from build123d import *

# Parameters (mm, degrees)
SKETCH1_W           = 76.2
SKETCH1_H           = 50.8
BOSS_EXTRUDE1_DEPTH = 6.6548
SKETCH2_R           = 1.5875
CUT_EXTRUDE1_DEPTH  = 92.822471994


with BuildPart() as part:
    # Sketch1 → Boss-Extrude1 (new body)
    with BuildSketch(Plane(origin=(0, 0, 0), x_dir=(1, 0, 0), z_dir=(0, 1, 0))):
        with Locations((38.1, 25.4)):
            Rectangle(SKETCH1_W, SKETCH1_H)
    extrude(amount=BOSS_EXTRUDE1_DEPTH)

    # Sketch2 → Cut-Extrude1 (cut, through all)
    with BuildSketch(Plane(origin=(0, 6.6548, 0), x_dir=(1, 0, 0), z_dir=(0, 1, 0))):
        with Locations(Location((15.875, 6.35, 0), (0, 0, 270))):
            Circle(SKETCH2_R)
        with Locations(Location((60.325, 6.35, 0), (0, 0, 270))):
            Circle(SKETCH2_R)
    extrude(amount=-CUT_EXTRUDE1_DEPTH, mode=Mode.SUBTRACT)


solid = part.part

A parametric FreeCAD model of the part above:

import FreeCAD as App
import Part
import Sketcher
Q = App.Units.Quantity

doc = App.newDocument("Part")
body = doc.addObject("PartDesign::Body", "Body")

# Sketch on XZ plane
sketch1 = doc.addObject("Sketcher::SketchObject", "Sketch")
body.addObject(sketch1)
sketch1.AttachmentSupport = (doc.XZ_Plane, [""])
sketch1.MapMode = "FlatFace"
sketch1.addGeometry([
    Part.LineSegment(App.Vector(0, -50.8, 0), App.Vector(0, 0, 0)),
    Part.LineSegment(App.Vector(0, 0, 0), App.Vector(76.2, 0, 0)),
    Part.LineSegment(App.Vector(76.2, 0, 0), App.Vector(76.2, -50.8, 0)),
    Part.LineSegment(App.Vector(76.2, -50.8, 0), App.Vector(0, -50.8, 0)),
], False)
sketch1.addConstraint([
    Sketcher.Constraint("Coincident", 0, 2, 1, 1),
    Sketcher.Constraint("Coincident", 1, 2, 2, 1),
    Sketcher.Constraint("Coincident", 2, 2, 3, 1),
    Sketcher.Constraint("Coincident", 3, 2, 0, 1),
    Sketcher.Constraint("Vertical", 0),
    Sketcher.Constraint("Horizontal", 1),
    Sketcher.Constraint("Vertical", 2),
    Sketcher.Constraint("Horizontal", 3),
    Sketcher.Constraint("Coincident", 0, 2, -1, 1),
    Sketcher.Constraint("DistanceX", 1, 1, 1, 2, Q("3 in")),
    Sketcher.Constraint("DistanceY", 0, 1, 0, 2, Q("2 in")),
])
pad1 = doc.addObject("PartDesign::Pad", "Pad")
body.addObject(pad1)
pad1.Profile = sketch1
pad1.Length = Q("0.262 in")
pad1.Reversed = True

# Sketch on XZ plane
sketch2 = doc.addObject("Sketcher::SketchObject", "Sketch001")
body.addObject(sketch2)
sketch2.AttachmentSupport = (doc.XZ_Plane, [""])
sketch2.MapMode = "FlatFace"
sketch2.AttachmentOffset = App.Placement(App.Vector(0, 0, -0.262 * 25.4), App.Rotation())
sketch2.addGeometry([
    Part.Circle(App.Vector(15.875, -6.35, 0), App.Vector(0, 0, 1), 1.5875),
    Part.Circle(App.Vector(60.325, -6.35, 0), App.Vector(0, 0, 1), 1.5875),
], False)
sketch2.addConstraint([
    Sketcher.Constraint("Equal", 0, 1),
    Sketcher.Constraint("Horizontal", 0, 3, 1, 3),
    Sketcher.Constraint("Diameter", 0, Q("0.125 in")),
    Sketcher.Constraint("DistanceY", 0, 3, -1, 1, Q("0.25 in")),
    Sketcher.Constraint("DistanceX", 0, 3, 1, 3, Q("1.75 in")),
    Sketcher.Constraint("DistanceX", -1, 1, 0, 3, Q("0.625 in")),
])
pocket1 = doc.addObject("PartDesign::Pocket", "Pocket")
body.addObject(pocket1)
pocket1.Profile = sketch2
pocket1.Type = "ThroughAll"
pocket1.Reversed = True

doc.recompute()
